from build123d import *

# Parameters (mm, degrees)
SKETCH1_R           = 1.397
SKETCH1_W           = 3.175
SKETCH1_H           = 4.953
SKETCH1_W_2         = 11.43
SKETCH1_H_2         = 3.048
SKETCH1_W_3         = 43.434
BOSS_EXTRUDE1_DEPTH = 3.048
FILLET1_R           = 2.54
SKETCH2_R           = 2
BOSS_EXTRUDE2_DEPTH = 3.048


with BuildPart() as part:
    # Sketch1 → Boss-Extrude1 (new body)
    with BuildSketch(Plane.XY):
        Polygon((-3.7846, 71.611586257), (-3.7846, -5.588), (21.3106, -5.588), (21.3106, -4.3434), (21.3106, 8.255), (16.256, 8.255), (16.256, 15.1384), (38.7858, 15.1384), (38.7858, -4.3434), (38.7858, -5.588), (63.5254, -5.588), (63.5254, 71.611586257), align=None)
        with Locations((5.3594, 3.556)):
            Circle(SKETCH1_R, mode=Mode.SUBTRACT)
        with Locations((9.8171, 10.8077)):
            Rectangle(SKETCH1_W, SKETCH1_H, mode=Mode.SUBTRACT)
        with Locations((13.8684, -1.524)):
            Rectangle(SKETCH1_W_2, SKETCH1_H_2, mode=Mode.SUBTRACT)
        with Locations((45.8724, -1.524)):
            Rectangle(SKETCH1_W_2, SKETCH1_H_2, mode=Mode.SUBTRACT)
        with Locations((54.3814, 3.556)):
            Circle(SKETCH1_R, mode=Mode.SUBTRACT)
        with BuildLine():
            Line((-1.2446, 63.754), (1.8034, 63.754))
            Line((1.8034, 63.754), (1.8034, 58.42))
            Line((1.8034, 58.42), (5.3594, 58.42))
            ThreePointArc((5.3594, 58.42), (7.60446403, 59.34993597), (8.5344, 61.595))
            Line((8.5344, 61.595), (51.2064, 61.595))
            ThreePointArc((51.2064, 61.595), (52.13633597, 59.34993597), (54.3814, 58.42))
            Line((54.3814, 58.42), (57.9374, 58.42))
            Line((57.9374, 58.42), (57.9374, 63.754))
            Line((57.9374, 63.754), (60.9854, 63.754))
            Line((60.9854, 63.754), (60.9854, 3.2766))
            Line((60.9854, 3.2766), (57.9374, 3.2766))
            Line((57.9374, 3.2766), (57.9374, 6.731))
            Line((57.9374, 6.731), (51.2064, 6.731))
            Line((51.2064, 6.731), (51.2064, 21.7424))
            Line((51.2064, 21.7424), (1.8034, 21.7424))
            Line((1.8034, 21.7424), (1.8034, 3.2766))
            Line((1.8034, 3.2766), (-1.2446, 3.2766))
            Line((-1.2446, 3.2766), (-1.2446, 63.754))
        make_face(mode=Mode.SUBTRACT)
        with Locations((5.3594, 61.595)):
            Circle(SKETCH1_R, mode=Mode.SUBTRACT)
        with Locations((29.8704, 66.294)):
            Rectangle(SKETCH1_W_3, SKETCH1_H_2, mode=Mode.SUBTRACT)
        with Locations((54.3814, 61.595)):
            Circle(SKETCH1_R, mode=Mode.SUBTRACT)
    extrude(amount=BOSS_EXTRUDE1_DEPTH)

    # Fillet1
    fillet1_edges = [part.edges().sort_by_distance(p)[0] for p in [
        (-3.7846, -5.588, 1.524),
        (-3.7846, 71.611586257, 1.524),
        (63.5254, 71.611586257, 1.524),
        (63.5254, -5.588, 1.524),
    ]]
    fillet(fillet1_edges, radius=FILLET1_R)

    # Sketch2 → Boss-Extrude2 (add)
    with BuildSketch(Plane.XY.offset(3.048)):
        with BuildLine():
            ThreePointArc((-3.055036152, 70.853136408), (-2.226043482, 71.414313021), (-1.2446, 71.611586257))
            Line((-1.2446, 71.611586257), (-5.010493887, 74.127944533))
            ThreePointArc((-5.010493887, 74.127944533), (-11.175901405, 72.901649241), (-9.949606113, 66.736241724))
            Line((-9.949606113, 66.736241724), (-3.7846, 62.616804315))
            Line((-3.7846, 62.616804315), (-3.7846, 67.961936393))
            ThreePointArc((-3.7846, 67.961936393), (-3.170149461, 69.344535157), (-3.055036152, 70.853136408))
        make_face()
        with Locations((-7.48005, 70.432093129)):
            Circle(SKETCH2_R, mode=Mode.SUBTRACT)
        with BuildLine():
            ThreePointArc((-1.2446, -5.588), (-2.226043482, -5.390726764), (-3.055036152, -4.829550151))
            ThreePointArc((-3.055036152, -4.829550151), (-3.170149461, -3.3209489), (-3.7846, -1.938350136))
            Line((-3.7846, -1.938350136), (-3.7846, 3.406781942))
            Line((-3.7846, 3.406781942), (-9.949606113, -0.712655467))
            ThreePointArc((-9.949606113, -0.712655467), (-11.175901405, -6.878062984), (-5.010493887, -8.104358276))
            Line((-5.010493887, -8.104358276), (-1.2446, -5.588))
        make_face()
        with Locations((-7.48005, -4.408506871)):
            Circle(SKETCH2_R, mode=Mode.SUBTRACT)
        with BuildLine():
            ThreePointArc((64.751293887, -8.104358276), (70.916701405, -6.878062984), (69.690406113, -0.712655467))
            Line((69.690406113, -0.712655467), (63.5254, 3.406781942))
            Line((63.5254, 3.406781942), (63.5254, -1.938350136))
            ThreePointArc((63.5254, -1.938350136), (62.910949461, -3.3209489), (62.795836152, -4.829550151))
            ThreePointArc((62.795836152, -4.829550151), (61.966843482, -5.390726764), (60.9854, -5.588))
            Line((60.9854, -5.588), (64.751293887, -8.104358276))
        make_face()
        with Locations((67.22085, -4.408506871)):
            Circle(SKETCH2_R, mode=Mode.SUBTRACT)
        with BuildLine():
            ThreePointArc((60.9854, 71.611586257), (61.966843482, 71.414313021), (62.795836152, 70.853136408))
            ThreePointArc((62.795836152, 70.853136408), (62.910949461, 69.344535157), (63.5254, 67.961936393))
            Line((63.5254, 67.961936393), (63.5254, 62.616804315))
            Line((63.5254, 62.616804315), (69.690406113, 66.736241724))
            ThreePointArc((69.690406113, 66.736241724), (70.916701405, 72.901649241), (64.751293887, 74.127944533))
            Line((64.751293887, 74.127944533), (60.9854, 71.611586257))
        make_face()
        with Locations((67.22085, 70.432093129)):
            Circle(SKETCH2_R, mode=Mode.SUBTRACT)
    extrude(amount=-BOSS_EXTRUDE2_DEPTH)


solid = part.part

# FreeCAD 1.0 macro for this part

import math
import FreeCAD as App
import Part
import Sketcher

V = App.Vector
Q = App.Units.Quantity


def edges_at(feature, points):
    """Names of the edges that pass closest to the given points."""
    edges = feature.Shape.Edges
    near = lambda p: min(range(len(edges)), key=lambda i: edges[i].distToShape(Part.Vertex(*p))[0])
    return sorted({f"Edge{near(p) + 1}" for p in points})

doc = App.newDocument("Part")
body = doc.addObject("PartDesign::Body", "Body")

sketch1 = doc.addObject("Sketcher::SketchObject", "Sketch")
body.addObject(sketch1)
sketch1.AttachmentSupport = (doc.XY_Plane, [""])
sketch1.MapMode = "FlatFace"
sketch1.addGeometry([
    Part.LineSegment(V(-3.7846, 71.611586, 0), V(-3.7846, -5.588, 0)),
    Part.LineSegment(V(-3.7846, -5.588, 0), V(21.3106, -5.588, 0)),
    Part.LineSegment(V(21.3106, -5.588, 0), V(21.3106, 8.255, 0)),
    Part.LineSegment(V(21.3106, 8.255, 0), V(16.256, 8.255, 0)),
    Part.LineSegment(V(16.256, 8.255, 0), V(16.256, 15.1384, 0)),
    Part.LineSegment(V(16.256, 15.1384, 0), V(38.7858, 15.1384, 0)),
    Part.LineSegment(V(38.7858, 15.1384, 0), V(38.7858, -5.588, 0)),
    Part.LineSegment(V(38.7858, -5.588, 0), V(63.5254, -5.588, 0)),
    Part.LineSegment(V(63.5254, -5.588, 0), V(63.5254, 71.611586, 0)),
    Part.LineSegment(V(63.5254, 71.611586, 0), V(-3.7846, 71.611586, 0)),
    Part.Circle(V(5.3594, 3.556, 0), V(0, 0, 1), 1.397),
    Part.LineSegment(V(19.5834, -3.048, 0), V(8.1534, -3.048, 0)),
    Part.LineSegment(V(8.1534, -3.048, 0), V(8.1534, 0, 0)),
    Part.LineSegment(V(8.1534, 0, 0), V(19.5834, 0, 0)),
    Part.LineSegment(V(19.5834, 0, 0), V(19.5834, -3.048, 0)),
    Part.LineSegment(V(11.4046, 8.3312, 0), V(8.2296, 8.3312, 0)),
    Part.LineSegment(V(8.2296, 8.3312, 0), V(8.2296, 13.2842, 0)),
    Part.LineSegment(V(8.2296, 13.2842, 0), V(11.4046, 13.2842, 0)),
    Part.LineSegment(V(11.4046, 13.2842, 0), V(11.4046, 8.3312, 0)),
    Part.LineSegment(V(51.5874, -3.048, 0), V(40.1574, -3.048, 0)),
    Part.LineSegment(V(40.1574, -3.048, 0), V(40.1574, 0, 0)),
    Part.LineSegment(V(40.1574, 0, 0), V(51.5874, 0, 0)),
    Part.LineSegment(V(51.5874, 0, 0), V(51.5874, -3.048, 0)),
    Part.Circle(V(54.3814, 3.556, 0), V(0, 0, 1), 1.397),
    Part.Circle(V(5.3594, 61.595, 0), V(0, 0, 1), 1.397),
    Part.LineSegment(V(-1.2446, 3.2766, 0), V(-1.2446, 63.754, 0)),
    Part.LineSegment(V(-1.2446, 63.754, 0), V(1.8034, 63.754, 0)),
    Part.LineSegment(V(1.8034, 63.754, 0), V(1.8034, 58.42, 0)),
    Part.LineSegment(V(1.8034, 58.42, 0), V(5.3594, 58.42, 0)),
    Part.ArcOfCircle(Part.Circle(V(5.3594, 61.595, 0), V(0, 0, 1), 3.175), math.radians(-90), math.radians(0)),
    Part.LineSegment(V(8.5344, 61.595, 0), V(51.2064, 61.595, 0)),
    Part.ArcOfCircle(Part.Circle(V(54.3814, 61.595, 0), V(0, 0, 1), 3.175), math.radians(-180), math.radians(-90)),
    Part.LineSegment(V(54.3814, 58.42, 0), V(57.9374, 58.42, 0)),
    Part.LineSegment(V(57.9374, 58.42, 0), V(57.9374, 63.754, 0)),
    Part.LineSegment(V(57.9374, 63.754, 0), V(60.9854, 63.754, 0)),
    Part.LineSegment(V(60.9854, 63.754, 0), V(60.9854, 3.2766, 0)),
    Part.LineSegment(V(60.9854, 3.2766, 0), V(57.9374, 3.2766, 0)),
    Part.LineSegment(V(57.9374, 3.2766, 0), V(57.9374, 6.731, 0)),
    Part.LineSegment(V(57.9374, 6.731, 0), V(51.2064, 6.731, 0)),
    Part.LineSegment(V(51.2064, 6.731, 0), V(51.2064, 21.7424, 0)),
    Part.LineSegment(V(51.2064, 21.7424, 0), V(1.8034, 21.7424, 0)),
    Part.LineSegment(V(1.8034, 21.7424, 0), V(1.8034, 3.2766, 0)),
    Part.LineSegment(V(1.8034, 3.2766, 0), V(-1.2446, 3.2766, 0)),
    Part.LineSegment(V(51.5874, 64.77, 0), V(8.1534, 64.77, 0)),
    Part.LineSegment(V(8.1534, 64.77, 0), V(8.1534, 67.818, 0)),
    Part.LineSegment(V(8.1534, 67.818, 0), V(51.5874, 67.818, 0)),
    Part.LineSegment(V(51.5874, 67.818, 0), V(51.5874, 64.77, 0)),
    Part.Circle(V(54.3814, 61.595, 0), V(0, 0, 1), 1.397),
], False)
sketch1.addConstraint([
    Sketcher.Constraint("Coincident", 0, 2, 1, 1),
    Sketcher.Constraint("Coincident", 1, 2, 2, 1),
    Sketcher.Constraint("Coincident", 2, 2, 3, 1),
    Sketcher.Constraint("Coincident", 3, 2, 4, 1),
    Sketcher.Constraint("Coincident", 4, 2, 5, 1),
    Sketcher.Constraint("Coincident", 5, 2, 6, 1),
    Sketcher.Constraint("Coincident", 6, 2, 7, 1),
    Sketcher.Constraint("Coincident", 7, 2, 8, 1),
    Sketcher.Constraint("Coincident", 8, 2, 9, 1),
    Sketcher.Constraint("Coincident", 9, 2, 0, 1),
    Sketcher.Constraint("Coincident", 11, 2, 12, 1),
    Sketcher.Constraint("Coincident", 12, 2, 13, 1),
    Sketcher.Constraint("Coincident", 13, 2, 14, 1),
    Sketcher.Constraint("Coincident", 14, 2, 11, 1),
    Sketcher.Constraint("Coincident", 15, 2, 16, 1),
    Sketcher.Constraint("Coincident", 16, 2, 17, 1),
    Sketcher.Constraint("Coincident", 17, 2, 18, 1),
    Sketcher.Constraint("Coincident", 18, 2, 15, 1),
    Sketcher.Constraint("Coincident", 19, 2, 20, 1),
    Sketcher.Constraint("Coincident", 20, 2, 21, 1),
    Sketcher.Constraint("Coincident", 21, 2, 22, 1),
    Sketcher.Constraint("Coincident", 22, 2, 19, 1),
    Sketcher.Constraint("Coincident", 25, 2, 26, 1),
    Sketcher.Constraint("Coincident", 26, 2, 27, 1),
    Sketcher.Constraint("Coincident", 27, 2, 28, 1),
    Sketcher.Constraint("Tangent", 28, 2, 29, 1),
    Sketcher.Constraint("Coincident", 29, 2, 30, 1),
    Sketcher.Constraint("Coincident", 30, 2, 31, 1),
    Sketcher.Constraint("Tangent", 31, 2, 32, 1),
    Sketcher.Constraint("Coincident", 32, 2, 33, 1),
    Sketcher.Constraint("Coincident", 33, 2, 34, 1),
    Sketcher.Constraint("Coincident", 34, 2, 35, 1),
    Sketcher.Constraint("Coincident", 35, 2, 36, 1),
    Sketcher.Constraint("Coincident", 36, 2, 37, 1),
    Sketcher.Constraint("Coincident", 37, 2, 38, 1),
    Sketcher.Constraint("Coincident", 38, 2, 39, 1),
    Sketcher.Constraint("Coincident", 39, 2, 40, 1),
    Sketcher.Constraint("Coincident", 40, 2, 41, 1),
    Sketcher.Constraint("Coincident", 41, 2, 42, 1),
    Sketcher.Constraint("Coincident", 42, 2, 25, 1),
    Sketcher.Constraint("Coincident", 43, 2, 44, 1),
    Sketcher.Constraint("Coincident", 44, 2, 45, 1),
    Sketcher.Constraint("Coincident", 45, 2, 46, 1),
    Sketcher.Constraint("Coincident", 46, 2, 43, 1),
    Sketcher.Constraint("Vertical", 0),
    Sketcher.Constraint("Horizontal", 1),
    Sketcher.Constraint("Vertical", 2),
    Sketcher.Constraint("Horizontal", 3),
    Sketcher.Constraint("Vertical", 4),
    Sketcher.Constraint("Horizontal", 5),
    Sketcher.Constraint("Vertical", 6),
    Sketcher.Constraint("Horizontal", 7),
    Sketcher.Constraint("Vertical", 8),
    Sketcher.Constraint("Horizontal", 9),
    Sketcher.Constraint("Horizontal", 11),
    Sketcher.Constraint("Vertical", 12),
    Sketcher.Constraint("Horizontal", 13),
    Sketcher.Constraint("Vertical", 14),
    Sketcher.Constraint("Horizontal", 15),
    Sketcher.Constraint("Vertical", 16),
    Sketcher.Constraint("Horizontal", 17),
    Sketcher.Constraint("Vertical", 18),
    Sketcher.Constraint("Horizontal", 19),
    Sketcher.Constraint("Vertical", 20),
    Sketcher.Constraint("Horizontal", 21),
    Sketcher.Constraint("Vertical", 22),
    Sketcher.Constraint("Vertical", 25),
    Sketcher.Constraint("Horizontal", 26),
    Sketcher.Constraint("Vertical", 27),
    Sketcher.Constraint("Horizontal", 28),
    Sketcher.Constraint("Horizontal", 30),
    Sketcher.Constraint("Horizontal", 32),
    Sketcher.Constraint("Vertical", 33),
    Sketcher.Constraint("Horizontal", 34),
    Sketcher.Constraint("Vertical", 35),
    Sketcher.Constraint("Horizontal", 36),
    Sketcher.Constraint("Vertical", 37),
    Sketcher.Constraint("Horizontal", 38),
    Sketcher.Constraint("Vertical", 39),
    Sketcher.Constraint("Horizontal", 40),
    Sketcher.Constraint("Vertical", 41),
    Sketcher.Constraint("Horizontal", 42),
    Sketcher.Constraint("Horizontal", 43),
    Sketcher.Constraint("Vertical", 44),
    Sketcher.Constraint("Horizontal", 45),
    Sketcher.Constraint("Vertical", 46),
    Sketcher.Constraint("Coincident", 29, 3, 24, 3),
    Sketcher.Constraint("Coincident", 47, 3, 31, 3),
    Sketcher.Constraint("Equal", 10, 23),
    Sketcher.Constraint("Equal", 23, 24),
    Sketcher.Constraint("Equal", 29, 31),
    Sketcher.Constraint("Equal", 24, 47),
    Sketcher.Constraint("PointOnObject", 12, 2, -1),
    Sketcher.Constraint("PointOnObject", 20, 2, -1),
    Sketcher.Constraint("Horizontal", 10, 3, 23, 3),
    Sketcher.Constraint("Horizontal", 29, 3, 31, 3),
    Sketcher.Constraint("Horizontal", 1, 2, 6, 2),
    Sketcher.Constraint("Horizontal", 14, 2, 19, 2),
    Sketcher.Constraint("Horizontal", 47, 3, 29, 2),
    Sketcher.Constraint("Horizontal", 26, 2, 33, 2),
    Sketcher.Constraint("Horizontal", 36, 2, 41, 2),
    Sketcher.Constraint("Vertical", 10, 3, 24, 3),
    Sketcher.Constraint("Vertical", 23, 3, 31, 3),
    Sketcher.Constraint("Vertical", 33, 2, 36, 2),
    Sketcher.Constraint("Vertical", 30, 2, 38, 2),
    Sketcher.Constraint("Vertical", 27, 2, 40, 2),
    Sketcher.Constraint("Vertical", 12, 2, 43, 2),
    Sketcher.Constraint("Vertical", 22, 2, 45, 2),
    Sketcher.Constraint("Equal", 13, 19),
    Sketcher.Constraint("Equal", 28, 32),
    Sketcher.Constraint("Equal", 26, 34),
    Sketcher.Constraint("Equal", 42, 12),
    Sketcher.Constraint("Equal", 22, 44),
    Sketcher.Constraint("Diameter", 10, Q("0.11 in")),
    Sketcher.Constraint("Radius", 29, Q("0.125 in")),
    Sketcher.Constraint("DistanceX", 9, 2, 9, 1, Q("2.65 in")),
    Sketcher.Constraint("DistanceX", 11, 2, 11, 1, Q("0.45 in")),
    Sketcher.Constraint("DistanceX", 26, 1, 26, 2, Q("0.12 in")),
    Sketcher.Constraint("DistanceX", 28, 1, 28, 2, Q("0.14 in")),
    Sketcher.Constraint("DistanceX", 30, 1, 30, 2, Q("1.68 in")),
    Sketcher.Constraint("DistanceX", 43, 2, 43, 1, Q("1.71 in")),
    Sketcher.Constraint("DistanceY", 27, 2, 27, 1, Q("0.21 in")),
    Sketcher.Constraint("DistanceY", -1, 1, 27, 2, Q("2.3 in")),
    Sketcher.Constraint("DistanceY", 2, 2, 24, 3, Q("2.1 in")),
    Sketcher.Constraint("DistanceY", 0, 2, 11, 2, Q("0.1 in")),
    Sketcher.Constraint("DistanceX", 9, 2, 25, 2, Q("0.1 in")),
    Sketcher.Constraint("DistanceX", 1, 1, 1, 2, Q("0.988 in")),
    Sketcher.Constraint("DistanceX", 3, 2, 3, 1, Q("0.199 in")),
    Sketcher.Constraint("DistanceX", 5, 1, 5, 2, Q("0.887 in")),
    Sketcher.Constraint("DistanceX", 15, 2, 15, 1, Q("0.125 in")),
    Sketcher.Constraint("DistanceY", 4, 1, 4, 2, Q("0.271 in")),
    Sketcher.Constraint("DistanceY", 16, 1, 16, 2, Q("0.195 in")),
    Sketcher.Constraint("DistanceY", 25, 1, 25, 2, Q("2.381 in")),
    Sketcher.Constraint("DistanceY", 37, 1, 37, 2, Q("0.136 in")),
    Sketcher.Constraint("DistanceY", 39, 1, 39, 2, Q("0.591 in")),
    Sketcher.Constraint("DistanceY", -1, 1, 10, 3, Q("0.14 in")),
    Sketcher.Constraint("DistanceX", -1, 1, 3, 2, Q("0.64 in")),
    Sketcher.Constraint("DistanceY", -1, 1, 43, 2, Q("2.55 in")),
    Sketcher.Constraint("DistanceX", 10, 3, 11, 2, Q("0.11 in")),
    Sketcher.Constraint("DistanceX", 17, 2, 2, 2, Q("0.39 in")),
    Sketcher.Constraint("DistanceY", -1, 1, 15, 2, Q("0.328 in")),
    Sketcher.Constraint("DistanceY", 0, 2, 0, 1, 77.199586),
])
pad1 = doc.addObject("PartDesign::Pad", "Pad")
body.addObject(pad1)
pad1.Profile = sketch1
pad1.Length = Q("0.12 in")
doc.recompute()

fillet = doc.addObject("PartDesign::Fillet", "Fillet")
body.addObject(fillet)
fillet.Base = (pad1, edges_at(pad1, [
    (-3.785, -5.588, 1.524),
    (-3.785, 71.612, 1.524),
    (63.525, 71.612, 1.524),
    (63.525, -5.588, 1.524),
]))
fillet.Radius = Q("0.1 in")

sketch2 = doc.addObject("Sketcher::SketchObject", "Sketch001")
body.addObject(sketch2)
sketch2.AttachmentSupport = (doc.XY_Plane, [""])
sketch2.MapMode = "FlatFace"
sketch2.AttachmentOffset = App.Placement(V(0, 0, 0.12 * 25.4), App.Rotation())
sketch2.addGeometry([
    Part.ArcOfCircle(Part.Circle(V(-1.2446, 69.071586, 0), V(0, 0, 1), 2.54), math.radians(90), math.radians(135.460751)),
    Part.LineSegment(V(-1.2446, 71.611586, 0), V(-5.010494, 74.127945, 0)),
    Part.ArcOfCircle(Part.Circle(V(-7.48005, 70.432093, 0), V(0, 0, 1), 4.445), math.radians(56.24928), math.radians(236.24928)),
    Part.LineSegment(V(-9.949606, 66.736242, 0), V(-3.7846, 62.616804, 0)),
    Part.LineSegment(V(-3.7846, 62.616804, 0), V(-3.7846, 67.961936, 0)),
    Part.ArcOfCircle(Part.Circle(V(-7.48005, 70.432093, 0), V(0, 0, 1), 4.445), math.radians(-33.760032), math.radians(5.435371)),
    Part.Circle(V(-7.48005, 70.432093, 0), V(0, 0, 1), 2),
    Part.ArcOfCircle(Part.Circle(V(-1.2446, -3.048, 0), V(0, 0, 1), 2.54), math.radians(-135.460751), math.radians(-90)),
    Part.ArcOfCircle(Part.Circle(V(-7.48005, -4.408507, 0), V(0, 0, 1), 4.445), math.radians(-5.435371), math.radians(33.760032)),
    Part.LineSegment(V(-3.7846, -1.93835, 0), V(-3.7846, 3.406782, 0)),
    Part.LineSegment(V(-3.7846, 3.406782, 0), V(-9.949606, -0.712655, 0)),
    Part.ArcOfCircle(Part.Circle(V(-7.48005, -4.408507, 0), V(0, 0, 1), 4.445), math.radians(123.75072), math.radians(303.75072)),
    Part.LineSegment(V(-5.010494, -8.104358, 0), V(-1.2446, -5.588, 0)),
    Part.Circle(V(-7.48005, -4.408507, 0), V(0, 0, 1), 2),
    Part.ArcOfCircle(Part.Circle(V(67.22085, -4.408507, 0), V(0, 0, 1), 4.445), math.radians(-123.75072), math.radians(56.24928)),
    Part.LineSegment(V(69.690406, -0.712655, 0), V(63.5254, 3.406782, 0)),
    Part.LineSegment(V(63.5254, 3.406782, 0), V(63.5254, -1.93835, 0)),
    Part.ArcOfCircle(Part.Circle(V(67.22085, -4.408507, 0), V(0, 0, 1), 4.445), math.radians(146.239968), math.radians(185.435371)),
    Part.ArcOfCircle(Part.Circle(V(60.9854, -3.048, 0), V(0, 0, 1), 2.54), math.radians(-90), math.radians(-44.539249)),
    Part.LineSegment(V(60.9854, -5.588, 0), V(64.751294, -8.104358, 0)),
    Part.Circle(V(67.22085, -4.408507, 0), V(0, 0, 1), 2),
    Part.ArcOfCircle(Part.Circle(V(60.9854, 69.071586, 0), V(0, 0, 1), 2.54), math.radians(44.539249), math.radians(90)),
    Part.ArcOfCircle(Part.Circle(V(67.22085, 70.432093, 0), V(0, 0, 1), 4.445), math.radians(174.564629), math.radians(213.760032)),
    Part.LineSegment(V(63.5254, 67.961936, 0), V(63.5254, 62.616804, 0)),
    Part.LineSegment(V(63.5254, 62.616804, 0), V(69.690406, 66.736242, 0)),
    Part.ArcOfCircle(Part.Circle(V(67.22085, 70.432093, 0), V(0, 0, 1), 4.445), math.radians(-56.24928), math.radians(123.75072)),
    Part.LineSegment(V(64.751294, 74.127945, 0), V(60.9854, 71.611586, 0)),
    Part.Circle(V(67.22085, 70.432093, 0), V(0, 0, 1), 2),
], False)
sketch2.addConstraint([
    Sketcher.Constraint("Coincident", 0, 1, 1, 1),
    Sketcher.Constraint("Tangent", 1, 2, 2, 1),
    Sketcher.Constraint("Tangent", 2, 2, 3, 1),
    Sketcher.Constraint("Coincident", 3, 2, 4, 1),
    Sketcher.Constraint("Coincident", 4, 2, 5, 1),
    Sketcher.Constraint("Coincident", 5, 2, 0, 2),
    Sketcher.Constraint("Coincident", 7, 1, 8, 1),
    Sketcher.Constraint("Coincident", 8, 2, 9, 1),
    Sketcher.Constraint("Coincident", 9, 2, 10, 1),
    Sketcher.Constraint("Tangent", 10, 2, 11, 1),
    Sketcher.Constraint("Tangent", 11, 2, 12, 1),
    Sketcher.Constraint("Coincident", 12, 2, 7, 2),
    Sketcher.Constraint("Tangent", 14, 2, 15, 1),
    Sketcher.Constraint("Coincident", 15, 2, 16, 1),
    Sketcher.Constraint("Coincident", 16, 2, 17, 1),
    Sketcher.Constraint("Coincident", 17, 2, 18, 2),
    Sketcher.Constraint("Coincident", 18, 1, 19, 1),
    Sketcher.Constraint("Tangent", 19, 2, 14, 1),
    Sketcher.Constraint("Coincident", 21, 1, 22, 1),
    Sketcher.Constraint("Coincident", 22, 2, 23, 1),
    Sketcher.Constraint("Coincident", 23, 2, 24, 1),
    Sketcher.Constraint("Tangent", 24, 2, 25, 1),
    Sketcher.Constraint("Tangent", 25, 2, 26, 1),
    Sketcher.Constraint("Coincident", 26, 2, 21, 2),
    Sketcher.Constraint("Vertical", 4),
    Sketcher.Constraint("Vertical", 9),
    Sketcher.Constraint("Vertical", 16),
    Sketcher.Constraint("Vertical", 23),
    Sketcher.Constraint("Coincident", 5, 3, 2, 3),
    Sketcher.Constraint("Coincident", 6, 3, 2, 3),
    Sketcher.Constraint("Coincident", 11, 3, 8, 3),
    Sketcher.Constraint("Coincident", 13, 3, 8, 3),
    Sketcher.Constraint("Coincident", 17, 3, 14, 3),
    Sketcher.Constraint("Coincident", 20, 3, 14, 3),
    Sketcher.Constraint("Coincident", 25, 3, 22, 3),
    Sketcher.Constraint("Coincident", 27, 3, 22, 3),
    Sketcher.Constraint("Equal", 2, 5),
    Sketcher.Constraint("Equal", 0, 7),
    Sketcher.Constraint("Equal", 5, 8),
    Sketcher.Constraint("Equal", 8, 11),
    Sketcher.Constraint("Equal", 6, 13),
    Sketcher.Constraint("Equal", 11, 14),
    Sketcher.Constraint("Equal", 14, 17),
    Sketcher.Constraint("Equal", 7, 18),
    Sketcher.Constraint("Equal", 13, 20),
    Sketcher.Constraint("Equal", 18, 21),
    Sketcher.Constraint("Equal", 17, 22),
    Sketcher.Constraint("Equal", 22, 25),
    Sketcher.Constraint("Equal", 20, 27),
    Sketcher.Constraint("Parallel", 1, 3),
    Sketcher.Constraint("Parallel", 10, 12),
    Sketcher.Constraint("Parallel", 3, 15),
    Sketcher.Constraint("Parallel", 15, 19),
    Sketcher.Constraint("Parallel", 12, 24),
    Sketcher.Constraint("Parallel", 24, 26),
    Sketcher.Constraint("Horizontal", 13, 3, 14, 3),
    Sketcher.Constraint("Horizontal", 7, 3, 18, 3),
    Sketcher.Constraint("Horizontal", 0, 3, 21, 3),
    Sketcher.Constraint("Horizontal", 6, 3, 22, 3),
    Sketcher.Constraint("Horizontal", 10, 2, 14, 2),
    Sketcher.Constraint("Horizontal", 9, 2, 15, 2),
    Sketcher.Constraint("Horizontal", 7, 1, 17, 2),
    Sketcher.Constraint("Horizontal", 5, 2, 21, 1),
    Sketcher.Constraint("Horizontal", 4, 2, 22, 2),
    Sketcher.Constraint("Vertical", 0, 3, 7, 3),
    Sketcher.Constraint("Vertical", 6, 3, 8, 3),
    Sketcher.Constraint("Vertical", 18, 3, 21, 3),
    Sketcher.Constraint("Vertical", 7, 3, 0, 1),
    Sketcher.Constraint("Vertical", 5, 2, 7, 1),
    Sketcher.Constraint("Vertical", 4, 2, 8, 2),
    Sketcher.Constraint("Radius", 0, Q("0.1 in")),
    Sketcher.Constraint("Radius", 2, Q("0.175 in")),
    Sketcher.Constraint("DistanceX", 3, 2, 0, 3, Q("0.1 in")),
    Sketcher.Constraint("Diameter", 6, 4.0),
    Sketcher.Constraint("DistanceY", 7, 3, -1, 1, Q("0.12 in")),
    Sketcher.Constraint("DistanceX", 7, 3, 18, 3, Q("2.45 in")),
    Sketcher.Constraint("DistanceX", 0, 3, -1, 1, Q("0.049 in")),
    Sketcher.Constraint("DistanceY", 8, 3, 2, 3, 74.8406),
    Sketcher.Constraint("DistanceX", 11, 3, 14, 3, 74.7009),
    Sketcher.Constraint("DistanceY", 4, 2, 5, 2, 2.8912),
])
pad2 = doc.addObject("PartDesign::Pad", "Pad001")
body.addObject(pad2)
pad2.Profile = sketch2
pad2.Length = Q("0.12 in")
pad2.Reversed = True

doc.recompute()
